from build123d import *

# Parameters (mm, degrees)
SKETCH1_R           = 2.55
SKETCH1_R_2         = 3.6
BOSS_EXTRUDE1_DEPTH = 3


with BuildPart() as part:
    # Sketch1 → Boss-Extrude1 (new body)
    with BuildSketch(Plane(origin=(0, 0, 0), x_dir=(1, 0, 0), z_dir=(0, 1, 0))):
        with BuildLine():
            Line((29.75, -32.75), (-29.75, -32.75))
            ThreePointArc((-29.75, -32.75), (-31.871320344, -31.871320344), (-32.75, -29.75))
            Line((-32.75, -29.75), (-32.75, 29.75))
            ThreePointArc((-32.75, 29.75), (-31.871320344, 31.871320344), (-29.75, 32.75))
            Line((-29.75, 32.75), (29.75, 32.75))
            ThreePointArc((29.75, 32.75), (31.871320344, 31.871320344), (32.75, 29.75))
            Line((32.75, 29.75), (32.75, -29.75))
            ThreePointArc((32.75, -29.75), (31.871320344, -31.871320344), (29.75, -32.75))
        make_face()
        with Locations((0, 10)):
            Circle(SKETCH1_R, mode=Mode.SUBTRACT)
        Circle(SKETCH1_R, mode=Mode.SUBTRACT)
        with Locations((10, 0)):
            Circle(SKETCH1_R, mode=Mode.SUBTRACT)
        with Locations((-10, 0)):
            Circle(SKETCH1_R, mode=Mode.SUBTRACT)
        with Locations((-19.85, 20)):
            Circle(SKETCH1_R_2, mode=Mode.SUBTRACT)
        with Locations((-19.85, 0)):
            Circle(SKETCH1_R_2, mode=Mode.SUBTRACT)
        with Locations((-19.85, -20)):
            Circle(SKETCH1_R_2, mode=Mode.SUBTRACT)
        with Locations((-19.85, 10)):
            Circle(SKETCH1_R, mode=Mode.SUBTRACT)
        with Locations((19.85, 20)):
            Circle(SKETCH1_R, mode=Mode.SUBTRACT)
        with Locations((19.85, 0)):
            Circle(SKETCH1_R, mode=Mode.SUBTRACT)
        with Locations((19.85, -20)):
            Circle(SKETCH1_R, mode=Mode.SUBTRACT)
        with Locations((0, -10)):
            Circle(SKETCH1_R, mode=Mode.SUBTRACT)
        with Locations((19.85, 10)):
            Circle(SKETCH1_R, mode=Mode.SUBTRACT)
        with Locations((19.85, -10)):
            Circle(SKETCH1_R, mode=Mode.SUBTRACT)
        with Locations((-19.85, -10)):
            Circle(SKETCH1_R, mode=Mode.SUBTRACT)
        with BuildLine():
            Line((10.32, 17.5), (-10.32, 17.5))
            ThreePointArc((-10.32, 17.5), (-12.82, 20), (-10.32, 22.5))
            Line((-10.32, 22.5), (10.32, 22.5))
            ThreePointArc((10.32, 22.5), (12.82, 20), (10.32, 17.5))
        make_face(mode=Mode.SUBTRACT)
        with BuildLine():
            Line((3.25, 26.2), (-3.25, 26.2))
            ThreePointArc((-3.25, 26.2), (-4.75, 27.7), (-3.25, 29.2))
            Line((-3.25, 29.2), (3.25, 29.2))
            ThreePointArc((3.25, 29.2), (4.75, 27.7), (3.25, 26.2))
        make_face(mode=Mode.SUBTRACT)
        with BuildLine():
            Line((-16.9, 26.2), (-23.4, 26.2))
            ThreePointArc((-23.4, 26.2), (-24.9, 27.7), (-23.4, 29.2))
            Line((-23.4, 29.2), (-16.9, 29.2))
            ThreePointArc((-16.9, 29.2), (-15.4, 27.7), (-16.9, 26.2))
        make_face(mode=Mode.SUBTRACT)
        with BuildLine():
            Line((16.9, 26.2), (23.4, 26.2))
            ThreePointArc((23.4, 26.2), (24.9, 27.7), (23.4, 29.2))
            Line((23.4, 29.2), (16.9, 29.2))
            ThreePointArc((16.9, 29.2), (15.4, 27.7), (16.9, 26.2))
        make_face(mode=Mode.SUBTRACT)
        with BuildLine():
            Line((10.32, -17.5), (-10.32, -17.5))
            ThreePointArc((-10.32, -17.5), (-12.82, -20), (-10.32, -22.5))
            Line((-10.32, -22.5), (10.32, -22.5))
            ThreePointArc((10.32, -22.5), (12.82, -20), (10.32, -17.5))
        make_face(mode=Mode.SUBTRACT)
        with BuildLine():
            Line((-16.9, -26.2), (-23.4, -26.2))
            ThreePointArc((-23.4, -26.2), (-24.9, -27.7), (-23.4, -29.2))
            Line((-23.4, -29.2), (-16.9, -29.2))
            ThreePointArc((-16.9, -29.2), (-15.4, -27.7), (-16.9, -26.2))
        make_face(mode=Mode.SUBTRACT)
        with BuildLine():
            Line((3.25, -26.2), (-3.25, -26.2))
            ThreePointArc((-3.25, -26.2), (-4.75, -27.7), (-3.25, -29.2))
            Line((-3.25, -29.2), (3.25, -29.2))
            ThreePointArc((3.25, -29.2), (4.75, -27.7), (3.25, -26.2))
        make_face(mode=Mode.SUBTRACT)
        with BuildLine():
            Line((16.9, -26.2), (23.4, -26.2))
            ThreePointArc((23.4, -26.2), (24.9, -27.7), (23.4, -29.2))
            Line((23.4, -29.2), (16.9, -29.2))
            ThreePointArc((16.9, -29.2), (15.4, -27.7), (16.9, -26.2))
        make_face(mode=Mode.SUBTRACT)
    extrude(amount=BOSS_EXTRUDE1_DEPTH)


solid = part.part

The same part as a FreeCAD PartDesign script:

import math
import FreeCAD as App
import Part
import Sketcher
from FreeCAD import Vector

doc = App.newDocument("Part")
body = doc.addObject("PartDesign::Body", "Body")

sketch1 = body.newObject("Sketcher::SketchObject", "Sketch")
sketch1.AttachmentSupport = (doc.getObject("XZ_Plane"), [""])
sketch1.MapMode = "FlatFace"
sketch1.addGeometry(Part.LineSegment(Vector(-29.8, 32.8, 0), Vector(29.8, 32.8, 0)), False)
sketch1.addGeometry(Part.ArcOfCircle(Part.Circle(Vector(29.8, 29.8, 0), Vector(0, 0, 1), 3), math.radians(0), math.radians(90)), False)
sketch1.addGeometry(Part.LineSegment(Vector(32.8, 29.8, 0), Vector(32.8, -29.8, 0)), False)
sketch1.addGeometry(Part.ArcOfCircle(Part.Circle(Vector(29.8, -29.8, 0), Vector(0, 0, 1), 3), math.radians(-90), math.radians(0)), False)
sketch1.addGeometry(Part.LineSegment(Vector(29.8, -32.8, 0), Vector(-29.8, -32.8, 0)), False)
sketch1.addGeometry(Part.ArcOfCircle(Part.Circle(Vector(-29.8, -29.8, 0), Vector(0, 0, 1), 3), math.radians(180), math.radians(270)), False)
sketch1.addGeometry(Part.LineSegment(Vector(-32.8, -29.8, 0), Vector(-32.8, 29.8, 0)), False)
sketch1.addGeometry(Part.ArcOfCircle(Part.Circle(Vector(-29.8, 29.8, 0), Vector(0, 0, 1), 3), math.radians(90), math.radians(180)), False)
sketch1.addGeometry(Part.LineSegment(Vector(16.9, 26.2, 0), Vector(23.4, 26.2, 0)), False)
sketch1.addGeometry(Part.ArcOfCircle(Part.Circle(Vector(23.4, 27.7, 0), Vector(0, 0, 1), 1.5), math.radians(-90), math.radians(90)), False)
sketch1.addGeometry(Part.LineSegment(Vector(23.4, 29.2, 0), Vector(16.9, 29.2, 0)), False)
sketch1.addGeometry(Part.ArcOfCircle(Part.Circle(Vector(16.9, 27.7, 0), Vector(0, 0, 1), 1.5), math.radians(90), math.radians(270)), False)
sketch1.addGeometry(Part.Circle(Vector(19.9, 20, 0), Vector(0, 0, 1), 2.5), False)
sketch1.addGeometry(Part.ArcOfCircle(Part.Circle(Vector(3.2, 27.7, 0), Vector(0, 0, 1), 1.5), math.radians(-90), math.radians(90)), False)
sketch1.addGeometry(Part.LineSegment(Vector(3.2, 29.2, 0), Vector(-3.2, 29.2, 0)), False)
sketch1.addGeometry(Part.ArcOfCircle(Part.Circle(Vector(-3.2, 27.7, 0), Vector(0, 0, 1), 1.5), math.radians(90), math.radians(270)), False)
sketch1.addGeometry(Part.LineSegment(Vector(-3.2, 26.2, 0), Vector(3.2, 26.2, 0)), False)
sketch1.addGeometry(Part.ArcOfCircle(Part.Circle(Vector(10.3, 20, 0), Vector(0, 0, 1), 2.5), math.radians(-90), math.radians(90)), False)
sketch1.addGeometry(Part.LineSegment(Vector(10.3, 22.5, 0), Vector(-10.3, 22.5, 0)), False)
sketch1.addGeometry(Part.ArcOfCircle(Part.Circle(Vector(-10.3, 20, 0), Vector(0, 0, 1), 2.5), math.radians(90), math.radians(270)), False)
sketch1.addGeometry(Part.LineSegment(Vector(-10.3, 17.5, 0), Vector(10.3, 17.5, 0)), False)
sketch1.addGeometry(Part.Circle(Vector(19.9, 10, 0), Vector(0, 0, 1), 2.5), False)
sketch1.addGeometry(Part.Circle(Vector(19.9, 0, 0), Vector(0, 0, 1), 2.5), False)
sketch1.addGeometry(Part.Circle(Vector(0, 10, 0), Vector(0, 0, 1), 2.5), False)
sketch1.addGeometry(Part.Circle(Vector(10, 0, 0), Vector(0, 0, 1), 2.5), False)
sketch1.addGeometry(Part.Circle(Vector(0, 0, 0), Vector(0, 0, 1), 2.5), False)
sketch1.addGeometry(Part.ArcOfCircle(Part.Circle(Vector(-16.9, 27.7, 0), Vector(0, 0, 1), 1.5), math.radians(-90), math.radians(90)), False)
sketch1.addGeometry(Part.LineSegment(Vector(-16.9, 29.2, 0), Vector(-23.4, 29.2, 0)), False)
sketch1.addGeometry(Part.ArcOfCircle(Part.Circle(Vector(-23.4, 27.7, 0), Vector(0, 0, 1), 1.5), math.radians(90), math.radians(270)), False)
sketch1.addGeometry(Part.LineSegment(Vector(-23.4, 26.2, 0), Vector(-16.9, 26.2, 0)), False)
sketch1.addGeometry(Part.Circle(Vector(-19.9, 20, 0), Vector(0, 0, 1), 3.6), False)
sketch1.addGeometry(Part.Circle(Vector(-10, 0, 0), Vector(0, 0, 1), 2.5), False)
sketch1.addGeometry(Part.Circle(Vector(-19.9, 10, 0), Vector(0, 0, 1), 2.5), False)
sketch1.addGeometry(Part.Circle(Vector(-19.9, 0, 0), Vector(0, 0, 1), 3.6), False)
sketch1.addGeometry(Part.Circle(Vector(19.9, -10, 0), Vector(0, 0, 1), 2.5), False)
sketch1.addGeometry(Part.Circle(Vector(0, -10, 0), Vector(0, 0, 1), 2.5), False)
sketch1.addGeometry(Part.Circle(Vector(19.9, -20, 0), Vector(0, 0, 1), 2.5), False)
sketch1.addGeometry(Part.ArcOfCircle(Part.Circle(Vector(16.9, -27.7, 0), Vector(0, 0, 1), 1.5), math.radians(90), math.radians(270)), False)
sketch1.addGeometry(Part.LineSegment(Vector(16.9, -29.2, 0), Vector(23.4, -29.2, 0)), False)
sketch1.addGeometry(Part.ArcOfCircle(Part.Circle(Vector(23.4, -27.7, 0), Vector(0, 0, 1), 1.5), math.radians(-90), math.radians(90)), False)
sketch1.addGeometry(Part.LineSegment(Vector(23.4, -26.2, 0), Vector(16.9, -26.2, 0)), False)
sketch1.addGeometry(Part.LineSegment(Vector(10.3, -17.5, 0), Vector(-10.3, -17.5, 0)), False)
sketch1.addGeometry(Part.ArcOfCircle(Part.Circle(Vector(-10.3, -20, 0), Vector(0, 0, 1), 2.5), math.radians(90), math.radians(270)), False)
sketch1.addGeometry(Part.LineSegment(Vector(-10.3, -22.5, 0), Vector(10.3, -22.5, 0)), False)
sketch1.addGeometry(Part.ArcOfCircle(Part.Circle(Vector(10.3, -20, 0), Vector(0, 0, 1), 2.5), math.radians(-90), math.radians(90)), False)
sketch1.addGeometry(Part.LineSegment(Vector(3.2, -26.2, 0), Vector(-3.2, -26.2, 0)), False)
sketch1.addGeometry(Part.ArcOfCircle(Part.Circle(Vector(-3.2, -27.7, 0), Vector(0, 0, 1), 1.5), math.radians(90), math.radians(270)), False)
sketch1.addGeometry(Part.LineSegment(Vector(-3.2, -29.2, 0), Vector(3.2, -29.2, 0)), False)
sketch1.addGeometry(Part.ArcOfCircle(Part.Circle(Vector(3.2, -27.7, 0), Vector(0, 0, 1), 1.5), math.radians(-90), math.radians(90)), False)
sketch1.addGeometry(Part.Circle(Vector(-19.9, -10, 0), Vector(0, 0, 1), 2.5), False)
sketch1.addGeometry(Part.Circle(Vector(-19.9, -20, 0), Vector(0, 0, 1), 3.6), False)
sketch1.addGeometry(Part.LineSegment(Vector(-16.9, -26.2, 0), Vector(-23.4, -26.2, 0)), False)
sketch1.addGeometry(Part.ArcOfCircle(Part.Circle(Vector(-23.4, -27.7, 0), Vector(0, 0, 1), 1.5), math.radians(90), math.radians(270)), False)
sketch1.addGeometry(Part.LineSegment(Vector(-23.4, -29.2, 0), Vector(-16.9, -29.2, 0)), False)
sketch1.addGeometry(Part.ArcOfCircle(Part.Circle(Vector(-16.9, -27.7, 0), Vector(0, 0, 1), 1.5), math.radians(-90), math.radians(90)), False)
sketch1.addConstraint(Sketcher.Constraint("Tangent", 0, 2, 1, 2))
sketch1.addConstraint(Sketcher.Constraint("Tangent", 1, 1, 2, 1))
sketch1.addConstraint(Sketcher.Constraint("Tangent", 2, 2, 3, 2))
sketch1.addConstraint(Sketcher.Constraint("Tangent", 3, 1, 4, 1))
sketch1.addConstraint(Sketcher.Constraint("Tangent", 4, 2, 5, 2))
sketch1.addConstraint(Sketcher.Constraint("Tangent", 5, 1, 6, 1))
sketch1.addConstraint(Sketcher.Constraint("Tangent", 6, 2, 7, 2))
sketch1.addConstraint(Sketcher.Constraint("Tangent", 7, 1, 0, 1))
sketch1.addConstraint(Sketcher.Constraint("Tangent", 8, 2, 9, 1))
sketch1.addConstraint(Sketcher.Constraint("Tangent", 9, 2, 10, 1))
sketch1.addConstraint(Sketcher.Constraint("Tangent", 10, 2, 11, 1))
sketch1.addConstraint(Sketcher.Constraint("Tangent", 11, 2, 8, 1))
sketch1.addConstraint(Sketcher.Constraint("Tangent", 13, 2, 14, 1))
sketch1.addConstraint(Sketcher.Constraint("Tangent", 14, 2, 15, 1))
sketch1.addConstraint(Sketcher.Constraint("Tangent", 15, 2, 16, 1))
sketch1.addConstraint(Sketcher.Constraint("Tangent", 16, 2, 13, 1))
sketch1.addConstraint(Sketcher.Constraint("Tangent", 17, 2, 18, 1))
sketch1.addConstraint(Sketcher.Constraint("Tangent", 18, 2, 19, 1))
sketch1.addConstraint(Sketcher.Constraint("Tangent", 19, 2, 20, 1))
sketch1.addConstraint(Sketcher.Constraint("Tangent", 20, 2, 17, 1))
sketch1.addConstraint(Sketcher.Constraint("Tangent", 26, 2, 27, 1))
sketch1.addConstraint(Sketcher.Constraint("Tangent", 27, 2, 28, 1))
sketch1.addConstraint(Sketcher.Constraint("Tangent", 28, 2, 29, 1))
sketch1.addConstraint(Sketcher.Constraint("Tangent", 29, 2, 26, 1))
sketch1.addConstraint(Sketcher.Constraint("Tangent", 37, 2, 38, 1))
sketch1.addConstraint(Sketcher.Constraint("Tangent", 38, 2, 39, 1))
sketch1.addConstraint(Sketcher.Constraint("Tangent", 39, 2, 40, 1))
sketch1.addConstraint(Sketcher.Constraint("Tangent", 40, 2, 37, 1))
sketch1.addConstraint(Sketcher.Constraint("Tangent", 41, 2, 42, 1))
sketch1.addConstraint(Sketcher.Constraint("Tangent", 42, 2, 43, 1))
sketch1.addConstraint(Sketcher.Constraint("Tangent", 43, 2, 44, 1))
sketch1.addConstraint(Sketcher.Constraint("Tangent", 44, 2, 41, 1))
sketch1.addConstraint(Sketcher.Constraint("Tangent", 45, 2, 46, 1))
sketch1.addConstraint(Sketcher.Constraint("Tangent", 46, 2, 47, 1))
sketch1.addConstraint(Sketcher.Constraint("Tangent", 47, 2, 48, 1))
sketch1.addConstraint(Sketcher.Constraint("Tangent", 48, 2, 45, 1))
sketch1.addConstraint(Sketcher.Constraint("Tangent", 51, 2, 52, 1))
sketch1.addConstraint(Sketcher.Constraint("Tangent", 52, 2, 53, 1))
sketch1.addConstraint(Sketcher.Constraint("Tangent", 53, 2, 54, 1))
sketch1.addConstraint(Sketcher.Constraint("Tangent", 54, 2, 51, 1))
sketch1.addConstraint(Sketcher.Constraint("Horizontal", 0))
sketch1.addConstraint(Sketcher.Constraint("Vertical", 2))
sketch1.addConstraint(Sketcher.Constraint("Horizontal", 4))
sketch1.addConstraint(Sketcher.Constraint("Vertical", 6))
sketch1.addConstraint(Sketcher.Constraint("Horizontal", 8))
sketch1.addConstraint(Sketcher.Constraint("Horizontal", 10))
sketch1.addConstraint(Sketcher.Constraint("Horizontal", 14))
sketch1.addConstraint(Sketcher.Constraint("Horizontal", 16))
sketch1.addConstraint(Sketcher.Constraint("Horizontal", 18))
sketch1.addConstraint(Sketcher.Constraint("Horizontal", 20))
sketch1.addConstraint(Sketcher.Constraint("Horizontal", 27))
sketch1.addConstraint(Sketcher.Constraint("Horizontal", 29))
sketch1.addConstraint(Sketcher.Constraint("Horizontal", 38))
sketch1.addConstraint(Sketcher.Constraint("Horizontal", 40))
sketch1.addConstraint(Sketcher.Constraint("Horizontal", 41))
sketch1.addConstraint(Sketcher.Constraint("Horizontal", 43))
sketch1.addConstraint(Sketcher.Constraint("Horizontal", 45))
sketch1.addConstraint(Sketcher.Constraint("Horizontal", 47))
sketch1.addConstraint(Sketcher.Constraint("Horizontal", 51))
sketch1.addConstraint(Sketcher.Constraint("Horizontal", 53))
sketch1.addConstraint(Sketcher.Constraint("Coincident", 25, 3, -1, 1))
sketch1.addConstraint(Sketcher.Constraint("Equal", 1, 3))
sketch1.addConstraint(Sketcher.Constraint("Equal", 3, 5))
sketch1.addConstraint(Sketcher.Constraint("Equal", 5, 7))
sketch1.addConstraint(Sketcher.Constraint("Equal", 11, 13))
sketch1.addConstraint(Sketcher.Constraint("Equal", 12, 21))
sketch1.addConstraint(Sketcher.Constraint("Equal", 21, 22))
sketch1.addConstraint(Sketcher.Constraint("Equal", 22, 23))
sketch1.addConstraint(Sketcher.Constraint("Equal", 23, 24))
sketch1.addConstraint(Sketcher.Constraint("Equal", 24, 25))
sketch1.addConstraint(Sketcher.Constraint("Equal", 15, 26))
sketch1.addConstraint(Sketcher.Constraint("Equal", 25, 31))
sketch1.addConstraint(Sketcher.Constraint("Equal", 31, 32))
sketch1.addConstraint(Sketcher.Constraint("Equal", 30, 33))
sketch1.addConstraint(Sketcher.Constraint("Equal", 32, 34))
sketch1.addConstraint(Sketcher.Constraint("Equal", 34, 35))
sketch1.addConstraint(Sketcher.Constraint("Equal", 35, 36))
sketch1.addConstraint(Sketcher.Constraint("Equal", 28, 37))
sketch1.addConstraint(Sketcher.Constraint("Equal", 19, 42))
sketch1.addConstraint(Sketcher.Constraint("Equal", 39, 46))
sketch1.addConstraint(Sketcher.Constraint("Equal", 36, 49))
sketch1.addConstraint(Sketcher.Constraint("Equal", 33, 50))
sketch1.addConstraint(Sketcher.Constraint("Equal", 48, 52))
sketch1.addConstraint(Sketcher.Constraint("Symmetric", 1, 3, 5, 3, -1, 1))
sketch1.addConstraint(Sketcher.Constraint("Symmetric", 24, 3, 31, 3, -1, 1))
sketch1.addConstraint(Sketcher.Constraint("Symmetric", 22, 3, 33, 3, -1, 1))
sketch1.addConstraint(Sketcher.Constraint("Symmetric", 32, 3, 34, 3, -1, 1))
sketch1.addConstraint(Sketcher.Constraint("Symmetric", 23, 3, 35, 3, -1, 1))
sketch1.addConstraint(Sketcher.Constraint("Symmetric", 30, 3, 36, 3, -1, 1))
sketch1.addConstraint(Sketcher.Constraint("Symmetric", 26, 3, 37, 3, -1, 1))
sketch1.addConstraint(Sketcher.Constraint("Symmetric", 17, 3, 42, 3, -1, 1))
sketch1.addConstraint(Sketcher.Constraint("Symmetric", 13, 3, 46, 3, -1, 1))
sketch1.addConstraint(Sketcher.Constraint("Symmetric", 21, 3, 49, 3, -1, 1))
sketch1.addConstraint(Sketcher.Constraint("Symmetric", 12, 3, 50, 3, -1, 1))
sketch1.addConstraint(Sketcher.Constraint("Symmetric", 9, 3, 52, 3, -1, 1))
sketch1.addConstraint(Sketcher.Constraint("Symmetric", 11, 3, 26, 3, -2))
sketch1.addConstraint(Sketcher.Constraint("Symmetric", 12, 3, 30, 3, -2))
sketch1.addConstraint(Sketcher.Constraint("Symmetric", 21, 3, 32, 3, -2))
sketch1.addConstraint(Sketcher.Constraint("PointOnObject", 22, 3, -1))
sketch1.addConstraint(Sketcher.Constraint("PointOnObject", 23, 3, -2))
sketch1.addConstraint(Sketcher.Constraint("PointOnObject", 24, 3, -1))
sketch1.addConstraint(Sketcher.Constraint("Horizontal", 11, 3, 13, 3))
sketch1.addConstraint(Sketcher.Constraint("Horizontal", 12, 3, 17, 3))
sketch1.addConstraint(Sketcher.Constraint("Horizontal", 21, 3, 23, 3))
sketch1.addConstraint(Sketcher.Constraint("Vertical", 12, 3, 21, 3))
sketch1.addConstraint(Sketcher.Constraint("Vertical", 21, 3, 22, 3))
sketch1.addConstraint(Sketcher.Constraint("Vertical", 9, 3, 39, 3))
sketch1.addConstraint(Sketcher.Constraint("Vertical", 19, 3, 42, 3))
sketch1.addConstraint(Sketcher.Constraint("Vertical", 17, 3, 44, 3))
sketch1.addConstraint(Sketcher.Constraint("Vertical", 15, 3, 46, 3))
sketch1.addConstraint(Sketcher.Constraint("Vertical", 13, 3, 48, 3))
sketch1.addConstraint(Sketcher.Constraint("Vertical", 28, 3, 52, 3))
sketch1.addConstraint(Sketcher.Constraint("Vertical", 26, 3, 54, 3))
sketch1.addConstraint(Sketcher.Constraint("Equal", 10, 14))
sketch1.addConstraint(Sketcher.Constraint("Equal", 4, 2))
sketch1.addConstraint(Sketcher.Constraint("Radius", 1, 3.0))
sketch1.addConstraint(Sketcher.Constraint("Diameter", 12, 5.1))
sketch1.addConstraint(Sketcher.Constraint("Diameter", 30, 7.2))
sketch1.addConstraint(Sketcher.Constraint("Radius", 9, 1.5))
sketch1.addConstraint(Sketcher.Constraint("Radius", 17, 2.5))
sketch1.addConstraint(Sketcher.Constraint("DistanceX", 0, 1, 0, 2, 59.5))
sketch1.addConstraint(Sketcher.Constraint("DistanceX", 8, 1, 8, 2, 6.5))
sketch1.addConstraint(Sketcher.Constraint("DistanceY", -1, 1, 12, 3, 20.0))
sketch1.addConstraint(Sketcher.Constraint("DistanceY", -1, 1, 21, 3, 10.0))
sketch1.addConstraint(Sketcher.Constraint("DistanceX", -1, 1, 24, 3, 10.0))
sketch1.addConstraint(Sketcher.Constraint("DistanceX", 18, 2, 18, 1, 20.64))
sketch1.addConstraint(Sketcher.Constraint("DistanceX", -1, 1, 9, 3, 23.4))
sketch1.addConstraint(Sketcher.Constraint("DistanceY", -1, 1, 9, 3, 27.7))
sketch1.addConstraint(Sketcher.Constraint("DistanceX", -1, 1, 12, 3, 19.85))
pad1 = body.newObject("PartDesign::Pad", "Pad")
pad1.Profile = sketch1
pad1.Length = 3
pad1.Reversed = True

doc.recompute()
